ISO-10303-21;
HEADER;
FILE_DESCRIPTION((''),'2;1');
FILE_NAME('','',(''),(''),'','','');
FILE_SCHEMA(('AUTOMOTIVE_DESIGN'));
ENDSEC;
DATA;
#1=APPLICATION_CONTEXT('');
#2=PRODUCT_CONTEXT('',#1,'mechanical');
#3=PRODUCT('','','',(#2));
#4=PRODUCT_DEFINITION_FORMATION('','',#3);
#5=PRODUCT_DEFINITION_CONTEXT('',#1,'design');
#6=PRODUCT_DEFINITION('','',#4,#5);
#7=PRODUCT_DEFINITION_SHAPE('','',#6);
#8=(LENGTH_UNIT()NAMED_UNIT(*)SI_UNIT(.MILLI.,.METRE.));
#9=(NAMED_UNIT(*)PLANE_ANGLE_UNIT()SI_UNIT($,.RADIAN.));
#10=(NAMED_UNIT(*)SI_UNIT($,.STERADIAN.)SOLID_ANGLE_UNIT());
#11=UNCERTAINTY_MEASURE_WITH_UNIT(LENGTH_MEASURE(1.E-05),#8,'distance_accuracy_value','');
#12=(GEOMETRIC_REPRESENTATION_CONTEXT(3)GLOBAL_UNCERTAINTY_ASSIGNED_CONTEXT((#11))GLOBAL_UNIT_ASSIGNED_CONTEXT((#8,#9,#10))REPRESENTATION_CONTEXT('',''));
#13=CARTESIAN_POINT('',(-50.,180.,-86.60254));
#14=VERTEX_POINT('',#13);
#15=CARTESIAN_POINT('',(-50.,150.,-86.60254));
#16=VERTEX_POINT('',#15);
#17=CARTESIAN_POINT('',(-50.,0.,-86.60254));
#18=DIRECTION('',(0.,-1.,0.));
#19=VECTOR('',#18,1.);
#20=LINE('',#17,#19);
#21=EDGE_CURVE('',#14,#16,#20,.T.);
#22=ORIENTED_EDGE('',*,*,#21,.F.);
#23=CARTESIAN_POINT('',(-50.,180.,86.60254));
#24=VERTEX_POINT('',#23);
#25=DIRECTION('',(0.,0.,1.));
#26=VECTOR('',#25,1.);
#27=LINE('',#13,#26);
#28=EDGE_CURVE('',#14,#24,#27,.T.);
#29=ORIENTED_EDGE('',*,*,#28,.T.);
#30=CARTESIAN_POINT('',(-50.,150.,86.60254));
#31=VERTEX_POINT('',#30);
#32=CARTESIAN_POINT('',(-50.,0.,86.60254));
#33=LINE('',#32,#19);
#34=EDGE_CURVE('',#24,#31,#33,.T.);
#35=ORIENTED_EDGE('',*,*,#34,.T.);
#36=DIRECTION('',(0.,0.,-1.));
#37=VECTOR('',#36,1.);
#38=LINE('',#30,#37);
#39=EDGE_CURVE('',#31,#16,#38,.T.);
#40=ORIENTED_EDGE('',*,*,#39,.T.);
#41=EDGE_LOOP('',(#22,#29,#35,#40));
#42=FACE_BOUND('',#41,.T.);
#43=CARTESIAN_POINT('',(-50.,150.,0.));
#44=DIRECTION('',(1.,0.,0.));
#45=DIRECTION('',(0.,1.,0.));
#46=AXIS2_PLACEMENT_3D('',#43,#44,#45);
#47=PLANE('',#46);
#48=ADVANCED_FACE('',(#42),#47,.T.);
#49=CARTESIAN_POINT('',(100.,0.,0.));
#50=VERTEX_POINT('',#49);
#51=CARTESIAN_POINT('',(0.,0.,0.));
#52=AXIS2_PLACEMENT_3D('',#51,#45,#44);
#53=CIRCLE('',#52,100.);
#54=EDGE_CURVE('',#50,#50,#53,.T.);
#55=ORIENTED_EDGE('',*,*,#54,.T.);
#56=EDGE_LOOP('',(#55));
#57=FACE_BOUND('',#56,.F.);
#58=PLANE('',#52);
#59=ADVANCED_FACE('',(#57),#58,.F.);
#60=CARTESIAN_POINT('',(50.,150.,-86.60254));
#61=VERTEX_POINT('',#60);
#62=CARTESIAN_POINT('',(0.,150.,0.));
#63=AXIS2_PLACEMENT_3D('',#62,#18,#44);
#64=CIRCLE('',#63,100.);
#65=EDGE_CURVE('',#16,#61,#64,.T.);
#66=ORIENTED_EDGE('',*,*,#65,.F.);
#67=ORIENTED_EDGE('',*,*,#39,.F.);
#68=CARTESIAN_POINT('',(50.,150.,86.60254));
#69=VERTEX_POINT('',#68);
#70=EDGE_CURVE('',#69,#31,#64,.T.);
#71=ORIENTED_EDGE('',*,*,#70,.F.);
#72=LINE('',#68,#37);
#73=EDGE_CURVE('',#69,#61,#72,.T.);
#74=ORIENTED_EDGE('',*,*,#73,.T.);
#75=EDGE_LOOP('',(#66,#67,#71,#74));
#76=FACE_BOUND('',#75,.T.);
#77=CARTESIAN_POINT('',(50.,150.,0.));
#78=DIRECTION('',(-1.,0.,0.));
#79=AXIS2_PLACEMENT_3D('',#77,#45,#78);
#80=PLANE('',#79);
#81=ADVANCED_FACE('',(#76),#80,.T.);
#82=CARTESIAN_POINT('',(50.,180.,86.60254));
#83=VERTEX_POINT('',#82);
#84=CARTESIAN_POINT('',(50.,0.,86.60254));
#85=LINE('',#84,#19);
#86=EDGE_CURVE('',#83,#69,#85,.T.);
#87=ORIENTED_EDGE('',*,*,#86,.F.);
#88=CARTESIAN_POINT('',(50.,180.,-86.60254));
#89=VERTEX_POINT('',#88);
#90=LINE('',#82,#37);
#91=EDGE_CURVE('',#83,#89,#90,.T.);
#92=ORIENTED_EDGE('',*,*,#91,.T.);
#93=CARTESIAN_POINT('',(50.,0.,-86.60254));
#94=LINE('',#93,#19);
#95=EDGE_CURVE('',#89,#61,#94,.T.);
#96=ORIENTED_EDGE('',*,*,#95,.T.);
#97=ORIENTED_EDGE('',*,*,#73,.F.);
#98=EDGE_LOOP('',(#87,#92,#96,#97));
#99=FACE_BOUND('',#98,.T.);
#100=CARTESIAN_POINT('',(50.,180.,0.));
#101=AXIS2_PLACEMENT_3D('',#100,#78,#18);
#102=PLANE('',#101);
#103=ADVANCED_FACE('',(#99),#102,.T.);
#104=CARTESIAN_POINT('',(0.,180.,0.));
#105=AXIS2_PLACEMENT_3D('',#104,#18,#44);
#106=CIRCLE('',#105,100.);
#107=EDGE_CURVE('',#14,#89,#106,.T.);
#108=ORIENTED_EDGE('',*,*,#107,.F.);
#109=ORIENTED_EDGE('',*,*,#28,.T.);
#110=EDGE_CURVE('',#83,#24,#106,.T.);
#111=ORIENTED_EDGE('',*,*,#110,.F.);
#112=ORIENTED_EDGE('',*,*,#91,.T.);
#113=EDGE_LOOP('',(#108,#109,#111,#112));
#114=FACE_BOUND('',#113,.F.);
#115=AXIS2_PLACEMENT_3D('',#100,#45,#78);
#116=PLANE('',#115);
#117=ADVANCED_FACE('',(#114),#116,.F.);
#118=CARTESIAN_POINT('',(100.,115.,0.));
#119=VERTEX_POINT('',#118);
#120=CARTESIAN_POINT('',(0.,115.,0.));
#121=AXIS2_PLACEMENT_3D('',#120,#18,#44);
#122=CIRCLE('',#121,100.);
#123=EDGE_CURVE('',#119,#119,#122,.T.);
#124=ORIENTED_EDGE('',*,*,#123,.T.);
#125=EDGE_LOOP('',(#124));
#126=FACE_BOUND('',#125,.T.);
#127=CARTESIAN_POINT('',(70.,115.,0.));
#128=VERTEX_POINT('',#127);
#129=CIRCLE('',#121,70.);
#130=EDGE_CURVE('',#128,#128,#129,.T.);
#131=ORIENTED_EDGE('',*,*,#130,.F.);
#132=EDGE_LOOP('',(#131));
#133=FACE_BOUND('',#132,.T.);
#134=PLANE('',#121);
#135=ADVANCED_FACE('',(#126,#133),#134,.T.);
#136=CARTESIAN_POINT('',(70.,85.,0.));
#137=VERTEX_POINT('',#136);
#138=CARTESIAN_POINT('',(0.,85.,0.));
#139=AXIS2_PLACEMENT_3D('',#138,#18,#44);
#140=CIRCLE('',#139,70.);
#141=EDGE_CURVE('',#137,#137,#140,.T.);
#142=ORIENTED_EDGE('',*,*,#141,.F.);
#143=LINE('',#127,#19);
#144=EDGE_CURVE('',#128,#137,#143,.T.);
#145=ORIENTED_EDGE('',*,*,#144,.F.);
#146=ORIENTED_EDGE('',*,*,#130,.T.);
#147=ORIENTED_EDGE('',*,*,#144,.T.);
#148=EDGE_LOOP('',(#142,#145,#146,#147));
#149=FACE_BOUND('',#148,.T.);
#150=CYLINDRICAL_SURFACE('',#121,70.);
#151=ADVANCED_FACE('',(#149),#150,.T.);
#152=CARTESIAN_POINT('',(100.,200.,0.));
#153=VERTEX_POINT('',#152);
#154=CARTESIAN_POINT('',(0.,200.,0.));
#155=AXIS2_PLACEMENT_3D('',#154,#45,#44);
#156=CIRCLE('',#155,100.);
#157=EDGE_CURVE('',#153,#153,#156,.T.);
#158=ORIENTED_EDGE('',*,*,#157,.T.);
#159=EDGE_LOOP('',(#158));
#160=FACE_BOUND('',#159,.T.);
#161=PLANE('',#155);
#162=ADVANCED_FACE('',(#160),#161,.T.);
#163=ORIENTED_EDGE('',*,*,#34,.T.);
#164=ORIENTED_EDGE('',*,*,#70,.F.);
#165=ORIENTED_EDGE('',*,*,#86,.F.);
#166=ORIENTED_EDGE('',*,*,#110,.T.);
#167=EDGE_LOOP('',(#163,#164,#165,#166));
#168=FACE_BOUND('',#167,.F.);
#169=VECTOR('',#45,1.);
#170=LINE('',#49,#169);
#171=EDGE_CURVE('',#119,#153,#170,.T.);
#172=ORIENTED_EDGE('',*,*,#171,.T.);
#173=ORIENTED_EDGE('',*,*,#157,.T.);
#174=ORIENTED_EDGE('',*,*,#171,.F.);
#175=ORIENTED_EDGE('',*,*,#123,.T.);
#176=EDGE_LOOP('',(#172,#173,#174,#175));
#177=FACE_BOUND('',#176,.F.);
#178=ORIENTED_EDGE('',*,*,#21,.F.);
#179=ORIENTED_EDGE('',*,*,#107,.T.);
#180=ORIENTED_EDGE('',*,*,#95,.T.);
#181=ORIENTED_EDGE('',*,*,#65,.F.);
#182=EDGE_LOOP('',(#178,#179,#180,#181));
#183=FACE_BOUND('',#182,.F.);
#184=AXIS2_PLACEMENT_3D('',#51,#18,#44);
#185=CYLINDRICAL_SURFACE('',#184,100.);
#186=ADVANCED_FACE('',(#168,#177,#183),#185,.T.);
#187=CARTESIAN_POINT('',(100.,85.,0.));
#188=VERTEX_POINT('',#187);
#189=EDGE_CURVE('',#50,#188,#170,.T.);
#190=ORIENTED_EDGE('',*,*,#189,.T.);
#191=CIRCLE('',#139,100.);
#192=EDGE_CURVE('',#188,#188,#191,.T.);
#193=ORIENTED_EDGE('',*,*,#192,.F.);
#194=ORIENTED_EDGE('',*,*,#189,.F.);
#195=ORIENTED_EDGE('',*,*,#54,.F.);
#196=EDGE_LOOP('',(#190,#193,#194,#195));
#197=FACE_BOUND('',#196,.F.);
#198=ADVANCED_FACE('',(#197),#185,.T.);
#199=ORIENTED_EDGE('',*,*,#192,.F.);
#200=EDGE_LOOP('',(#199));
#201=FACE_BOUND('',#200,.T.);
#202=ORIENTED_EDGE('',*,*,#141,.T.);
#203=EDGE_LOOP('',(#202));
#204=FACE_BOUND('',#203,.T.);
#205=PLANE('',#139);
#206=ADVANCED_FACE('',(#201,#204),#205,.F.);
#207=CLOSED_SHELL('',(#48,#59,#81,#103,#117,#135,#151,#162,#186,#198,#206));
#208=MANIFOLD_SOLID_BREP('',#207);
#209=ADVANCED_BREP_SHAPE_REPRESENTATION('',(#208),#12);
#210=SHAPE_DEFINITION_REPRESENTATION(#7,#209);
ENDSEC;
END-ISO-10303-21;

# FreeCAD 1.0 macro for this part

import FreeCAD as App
import Part
import Sketcher

V = App.Vector
Q = App.Units.Quantity

doc = App.newDocument("Part")
body = doc.addObject("PartDesign::Body", "Body")

# Sketch on XZ plane
sketch1 = body.newObject("Sketcher::SketchObject", "Sketch")
sketch1.AttachmentSupport = (doc.getObject("XZ_Plane"), [""])
sketch1.MapMode = "FlatFace"
sketch1.addGeometry(Part.Circle(V(0, 0, 0), V(0, 0, 1), 100), False)
sketch1.addConstraint(Sketcher.Constraint("Coincident", 0, 3, -1, 1))
sketch1.addConstraint(Sketcher.Constraint("Diameter", 0, Q("200 mm")))
pad1 = body.newObject("PartDesign::Pad", "Pad")
pad1.Profile = sketch1
pad1.Length = 200
pad1.Reversed = True

# Sketch on XY plane
sketch2 = body.newObject("Sketcher::SketchObject", "Sketch001")
sketch2.AttachmentSupport = (doc.getObject("XY_Plane"), [""])
sketch2.MapMode = "FlatFace"
sketch2.addGeometry(Part.LineSegment(V(100, 85, 0), V(100, 115, 0)), False)
sketch2.addGeometry(Part.LineSegment(V(100, 115, 0), V(70, 115, 0)), False)
sketch2.addGeometry(Part.LineSegment(V(70, 115, 0), V(70, 85, 0)), False)
sketch2.addGeometry(Part.LineSegment(V(70, 85, 0), V(100, 85, 0)), False)
sketch2.addConstraint(Sketcher.Constraint("Coincident", 0, 2, 1, 1))
sketch2.addConstraint(Sketcher.Constraint("Coincident", 1, 2, 2, 1))
sketch2.addConstraint(Sketcher.Constraint("Coincident", 2, 2, 3, 1))
sketch2.addConstraint(Sketcher.Constraint("Coincident", 3, 2, 0, 1))
sketch2.addConstraint(Sketcher.Constraint("Vertical", 0))
sketch2.addConstraint(Sketcher.Constraint("Horizontal", 1))
sketch2.addConstraint(Sketcher.Constraint("Vertical", 2))
sketch2.addConstraint(Sketcher.Constraint("Horizontal", 3))
sketch2.addConstraint(Sketcher.Constraint("Equal", 3, 0))
sketch2.addConstraint(Sketcher.Constraint("DistanceX", 1, 2, 1, 1, Q("30 mm")))
sketch2.addConstraint(Sketcher.Constraint("DistanceX", -1, 1, 0, 2, Q("100 mm")))
sketch2.addConstraint(Sketcher.Constraint("DistanceY", -1, 1, 0, 2, Q("115 mm")))
groove = body.newObject("PartDesign::Groove", "Groove")
groove.Profile = sketch2
groove.ReferenceAxis = (sketch2, ["V_Axis"])
groove.Angle = 360

# Sketch on XY plane
sketch3 = body.newObject("Sketcher::SketchObject", "Sketch002")
sketch3.AttachmentSupport = (doc.getObject("XY_Plane"), [""])
sketch3.MapMode = "FlatFace"
sketch3.addGeometry(Part.LineSegment(V(50, 180, 0), V(-50, 180, 0)), False)
sketch3.addGeometry(Part.LineSegment(V(-50, 180, 0), V(-50, 150, 0)), False)
sketch3.addGeometry(Part.LineSegment(V(-50, 150, 0), V(50, 150, 0)), False)
sketch3.addGeometry(Part.LineSegment(V(50, 150, 0), V(50, 180, 0)), False)
sketch3.addConstraint(Sketcher.Constraint("Coincident", 0, 2, 1, 1))
sketch3.addConstraint(Sketcher.Constraint("Coincident", 1, 2, 2, 1))
sketch3.addConstraint(Sketcher.Constraint("Coincident", 2, 2, 3, 1))
sketch3.addConstraint(Sketcher.Constraint("Coincident", 3, 2, 0, 1))
sketch3.addConstraint(Sketcher.Constraint("Horizontal", 0))
sketch3.addConstraint(Sketcher.Constraint("Vertical", 1))
sketch3.addConstraint(Sketcher.Constraint("Horizontal", 2))
sketch3.addConstraint(Sketcher.Constraint("Vertical", 3))
sketch3.addConstraint(Sketcher.Constraint("DistanceX", 0, 2, 0, 1, Q("100 mm")))
sketch3.addConstraint(Sketcher.Constraint("DistanceY", 1, 2, 1, 1, Q("30 mm")))
sketch3.addConstraint(Sketcher.Constraint("DistanceX", 0, 2, -1, 1, Q("50 mm")))
sketch3.addConstraint(Sketcher.Constraint("DistanceY", -1, 1, 0, 2, Q("180 mm")))
pocket1 = body.newObject("PartDesign::Pocket", "Pocket")
pocket1.Profile = sketch3
pocket1.Type = "ThroughAll"
pocket1.Midplane = True

doc.recompute()
